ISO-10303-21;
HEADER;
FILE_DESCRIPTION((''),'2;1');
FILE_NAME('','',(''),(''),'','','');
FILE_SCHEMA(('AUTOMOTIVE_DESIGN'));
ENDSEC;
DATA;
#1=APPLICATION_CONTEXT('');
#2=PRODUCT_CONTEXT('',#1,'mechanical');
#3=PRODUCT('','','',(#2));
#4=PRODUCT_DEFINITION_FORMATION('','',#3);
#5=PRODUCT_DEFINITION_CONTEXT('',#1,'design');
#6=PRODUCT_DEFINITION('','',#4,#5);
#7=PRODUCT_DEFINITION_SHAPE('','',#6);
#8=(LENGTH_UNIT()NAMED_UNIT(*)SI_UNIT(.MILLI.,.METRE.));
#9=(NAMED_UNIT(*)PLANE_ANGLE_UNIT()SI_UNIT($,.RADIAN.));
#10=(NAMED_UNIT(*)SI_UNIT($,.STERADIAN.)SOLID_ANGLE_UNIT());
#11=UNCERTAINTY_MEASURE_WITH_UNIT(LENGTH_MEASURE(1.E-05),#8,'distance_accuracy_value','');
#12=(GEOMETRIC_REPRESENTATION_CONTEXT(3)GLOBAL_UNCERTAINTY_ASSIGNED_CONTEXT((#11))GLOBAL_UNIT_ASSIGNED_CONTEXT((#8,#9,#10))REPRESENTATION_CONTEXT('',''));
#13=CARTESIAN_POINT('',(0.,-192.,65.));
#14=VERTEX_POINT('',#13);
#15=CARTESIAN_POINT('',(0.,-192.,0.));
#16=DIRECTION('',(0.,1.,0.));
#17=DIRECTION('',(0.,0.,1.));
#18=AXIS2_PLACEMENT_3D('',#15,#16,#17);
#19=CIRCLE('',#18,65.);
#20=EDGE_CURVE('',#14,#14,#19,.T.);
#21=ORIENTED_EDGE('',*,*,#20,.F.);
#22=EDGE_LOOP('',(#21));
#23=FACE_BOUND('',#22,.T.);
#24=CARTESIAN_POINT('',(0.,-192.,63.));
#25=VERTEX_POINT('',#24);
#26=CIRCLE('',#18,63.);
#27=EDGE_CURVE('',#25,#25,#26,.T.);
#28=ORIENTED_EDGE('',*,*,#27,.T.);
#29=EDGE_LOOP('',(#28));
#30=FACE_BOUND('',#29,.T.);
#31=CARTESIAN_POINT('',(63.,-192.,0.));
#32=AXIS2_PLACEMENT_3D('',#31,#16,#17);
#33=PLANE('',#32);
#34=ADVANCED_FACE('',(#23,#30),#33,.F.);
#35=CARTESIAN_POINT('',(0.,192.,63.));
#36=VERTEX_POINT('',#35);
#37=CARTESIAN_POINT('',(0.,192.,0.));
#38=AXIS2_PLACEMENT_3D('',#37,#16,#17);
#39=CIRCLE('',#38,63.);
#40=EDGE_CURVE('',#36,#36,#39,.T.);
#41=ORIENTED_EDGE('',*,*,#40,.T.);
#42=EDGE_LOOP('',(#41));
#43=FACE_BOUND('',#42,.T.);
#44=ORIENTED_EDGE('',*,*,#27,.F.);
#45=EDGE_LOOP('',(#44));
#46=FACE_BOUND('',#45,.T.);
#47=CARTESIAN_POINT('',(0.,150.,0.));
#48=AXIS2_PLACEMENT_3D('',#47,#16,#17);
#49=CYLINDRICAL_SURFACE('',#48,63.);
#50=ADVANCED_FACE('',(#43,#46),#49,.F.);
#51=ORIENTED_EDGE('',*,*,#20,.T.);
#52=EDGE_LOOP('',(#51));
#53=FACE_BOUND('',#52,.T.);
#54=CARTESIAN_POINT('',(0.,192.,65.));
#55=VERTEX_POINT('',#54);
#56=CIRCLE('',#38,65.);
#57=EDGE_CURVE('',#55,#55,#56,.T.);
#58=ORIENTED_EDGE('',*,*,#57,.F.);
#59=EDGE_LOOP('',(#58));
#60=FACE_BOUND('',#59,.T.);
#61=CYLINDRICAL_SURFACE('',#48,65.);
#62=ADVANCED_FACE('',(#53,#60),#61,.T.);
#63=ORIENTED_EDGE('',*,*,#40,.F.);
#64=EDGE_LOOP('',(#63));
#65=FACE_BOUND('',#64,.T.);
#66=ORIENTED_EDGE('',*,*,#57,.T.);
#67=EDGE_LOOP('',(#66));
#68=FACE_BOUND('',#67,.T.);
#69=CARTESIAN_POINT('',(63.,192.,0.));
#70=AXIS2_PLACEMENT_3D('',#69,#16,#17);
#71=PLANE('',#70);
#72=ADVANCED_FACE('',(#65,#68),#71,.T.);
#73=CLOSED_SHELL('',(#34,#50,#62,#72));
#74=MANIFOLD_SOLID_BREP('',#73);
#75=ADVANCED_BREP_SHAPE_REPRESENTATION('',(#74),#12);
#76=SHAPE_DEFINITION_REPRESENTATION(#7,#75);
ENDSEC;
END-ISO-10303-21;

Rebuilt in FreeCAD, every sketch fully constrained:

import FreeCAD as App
import Part
import Sketcher
Q = App.Units.Quantity


def add_polygon(sketch, points):
    """Adds a closed chain of lines whose ends are joined by coincident constraints."""
    first, n = sketch.GeometryCount, len(points)
    for a, b in zip(points, points[1:] + points[:1]):
        sketch.addGeometry(Part.LineSegment(App.Vector(*a, 0), App.Vector(*b, 0)), False)
    for i in range(n):
        sketch.addConstraint(Sketcher.Constraint("Coincident", first + i, 2, first + (i + 1) % n, 1))

doc = App.newDocument("Part")
params = doc.addObject("Spreadsheet::Sheet", "Params")
for row, (alias, value) in enumerate([
    ("sketch1_width", "2 mm"),
    ("sketch1_height", "384 mm"),
    ("revolution_angle", "360 deg"),
], start=1):
    params.set(f"A{row}", alias)
    params.set(f"B{row}", "=" + value)
    params.setAlias(f"B{row}", alias)

body = doc.addObject("PartDesign::Body", "Body")

sketch1 = doc.addObject("Sketcher::SketchObject", "Sketch")
body.addObject(sketch1)
sketch1.AttachmentSupport = (doc.XY_Plane, [""])
sketch1.MapMode = "FlatFace"
add_polygon(sketch1, [(63, 192), (63, -192), (65, -192), (65, 192)])
sketch1.addConstraint(Sketcher.Constraint("Vertical", 0))
sketch1.addConstraint(Sketcher.Constraint("Horizontal", 1))
sketch1.addConstraint(Sketcher.Constraint("Vertical", 2))
sketch1.addConstraint(Sketcher.Constraint("Horizontal", 3))
sketch1.addConstraint(Sketcher.Constraint("DistanceX", 1, 1, 1, 2, Q("2 mm")))
sketch1.addConstraint(Sketcher.Constraint("DistanceY", 0, 2, 0, 1, Q("384 mm")))
sketch1.addConstraint(Sketcher.Constraint("DistanceX", -1, 1, 0, 2, Q("63 mm")))
sketch1.addConstraint(Sketcher.Constraint("DistanceY", 0, 2, -1, 1, Q("192 mm")))
sketch1.setExpression("Constraints[8]", "Params.sketch1_width")
sketch1.setExpression("Constraints[9]", "Params.sketch1_height")
revolution = doc.addObject("PartDesign::Revolution", "Revolution")
body.addObject(revolution)
revolution.Profile = sketch1
revolution.ReferenceAxis = (sketch1, ["V_Axis"])
revolution.setExpression("Angle", "Params.revolution_angle")

doc.recompute()
